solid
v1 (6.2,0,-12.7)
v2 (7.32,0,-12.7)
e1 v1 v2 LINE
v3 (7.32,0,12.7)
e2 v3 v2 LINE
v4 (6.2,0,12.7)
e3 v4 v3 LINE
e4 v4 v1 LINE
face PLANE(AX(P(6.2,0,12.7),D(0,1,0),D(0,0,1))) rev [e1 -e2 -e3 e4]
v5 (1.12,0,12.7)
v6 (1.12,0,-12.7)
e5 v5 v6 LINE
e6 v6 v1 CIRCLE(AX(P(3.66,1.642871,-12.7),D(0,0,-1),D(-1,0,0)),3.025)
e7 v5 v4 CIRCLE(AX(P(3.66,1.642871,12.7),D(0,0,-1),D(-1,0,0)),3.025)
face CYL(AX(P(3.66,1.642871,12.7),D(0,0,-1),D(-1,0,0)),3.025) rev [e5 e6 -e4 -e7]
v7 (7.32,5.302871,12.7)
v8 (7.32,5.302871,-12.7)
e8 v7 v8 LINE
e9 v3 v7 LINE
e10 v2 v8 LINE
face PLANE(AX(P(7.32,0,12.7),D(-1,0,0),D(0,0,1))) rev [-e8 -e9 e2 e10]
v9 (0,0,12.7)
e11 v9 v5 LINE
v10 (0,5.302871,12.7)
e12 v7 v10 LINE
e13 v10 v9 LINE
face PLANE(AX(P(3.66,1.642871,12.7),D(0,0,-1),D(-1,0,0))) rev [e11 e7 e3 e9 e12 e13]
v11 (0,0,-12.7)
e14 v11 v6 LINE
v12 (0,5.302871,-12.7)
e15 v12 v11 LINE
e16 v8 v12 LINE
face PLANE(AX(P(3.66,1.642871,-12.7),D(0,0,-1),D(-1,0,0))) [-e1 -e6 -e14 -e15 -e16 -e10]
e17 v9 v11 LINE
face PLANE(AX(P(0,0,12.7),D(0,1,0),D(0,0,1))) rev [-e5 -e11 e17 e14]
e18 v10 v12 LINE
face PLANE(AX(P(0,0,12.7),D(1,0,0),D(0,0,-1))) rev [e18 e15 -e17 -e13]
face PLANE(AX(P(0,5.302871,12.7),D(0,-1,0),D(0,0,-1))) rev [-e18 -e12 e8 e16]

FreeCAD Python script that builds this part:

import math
import FreeCAD as App
import Part
import Sketcher

V = App.Vector
Q = App.Units.Quantity

doc = App.newDocument("Part")
body = doc.addObject("PartDesign::Body", "Body")

# Sketch on XY plane
sketch1 = doc.addObject("Sketcher::SketchObject", "Sketch")
body.addObject(sketch1)
sketch1.AttachmentSupport = (doc.XY_Plane, [""])
sketch1.MapMode = "FlatFace"
sketch1.addGeometry(Part.LineSegment(V(0, 0, 0), V(1.12, 0, 0)), False)
sketch1.addGeometry(Part.ArcOfCircle(Part.Circle(V(3.66, 1.642871, 0), V(0, 0, 1), 3.025), math.radians(-32.894772), math.radians(212.894772)), False)
sketch1.addGeometry(Part.LineSegment(V(6.2, 0, 0), V(7.32, 0, 0)), False)
sketch1.addGeometry(Part.LineSegment(V(7.32, 0, 0), V(7.32, 5.302871, 0)), False)
sketch1.addGeometry(Part.LineSegment(V(7.32, 5.302871, 0), V(0, 5.302871, 0)), False)
sketch1.addGeometry(Part.LineSegment(V(0, 5.302871, 0), V(0, 0, 0)), False)
sketch1.addConstraint(Sketcher.Constraint("Coincident", 0, 2, 1, 2))
sketch1.addConstraint(Sketcher.Constraint("Coincident", 1, 1, 2, 1))
sketch1.addConstraint(Sketcher.Constraint("Coincident", 2, 2, 3, 1))
sketch1.addConstraint(Sketcher.Constraint("Coincident", 3, 2, 4, 1))
sketch1.addConstraint(Sketcher.Constraint("Coincident", 4, 2, 5, 1))
sketch1.addConstraint(Sketcher.Constraint("Coincident", 5, 2, 0, 1))
sketch1.addConstraint(Sketcher.Constraint("Horizontal", 0))
sketch1.addConstraint(Sketcher.Constraint("Horizontal", 2))
sketch1.addConstraint(Sketcher.Constraint("Vertical", 3))
sketch1.addConstraint(Sketcher.Constraint("Horizontal", 4))
sketch1.addConstraint(Sketcher.Constraint("Vertical", 5))
sketch1.addConstraint(Sketcher.Constraint("Coincident", 5, 2, -1, 1))
sketch1.addConstraint(Sketcher.Constraint("PointOnObject", 1, 1, -1))
sketch1.addConstraint(Sketcher.Constraint("Equal", 0, 2))
sketch1.addConstraint(Sketcher.Constraint("DistanceX", 0, 2, 1, 3, Q("0.1 in")))
sketch1.addConstraint(Sketcher.Constraint("Radius", 1, 3.025))
sketch1.addConstraint(Sketcher.Constraint("DistanceX", 0, 1, 0, 2, 1.12))
sketch1.addConstraint(Sketcher.Constraint("DistanceY", 3, 1, 3, 2, 5.302871))
pad1 = doc.addObject("PartDesign::Pad", "Pad")
body.addObject(pad1)
pad1.Profile = sketch1
pad1.Length = Q("1 in")
pad1.Midplane = True

doc.recompute()
